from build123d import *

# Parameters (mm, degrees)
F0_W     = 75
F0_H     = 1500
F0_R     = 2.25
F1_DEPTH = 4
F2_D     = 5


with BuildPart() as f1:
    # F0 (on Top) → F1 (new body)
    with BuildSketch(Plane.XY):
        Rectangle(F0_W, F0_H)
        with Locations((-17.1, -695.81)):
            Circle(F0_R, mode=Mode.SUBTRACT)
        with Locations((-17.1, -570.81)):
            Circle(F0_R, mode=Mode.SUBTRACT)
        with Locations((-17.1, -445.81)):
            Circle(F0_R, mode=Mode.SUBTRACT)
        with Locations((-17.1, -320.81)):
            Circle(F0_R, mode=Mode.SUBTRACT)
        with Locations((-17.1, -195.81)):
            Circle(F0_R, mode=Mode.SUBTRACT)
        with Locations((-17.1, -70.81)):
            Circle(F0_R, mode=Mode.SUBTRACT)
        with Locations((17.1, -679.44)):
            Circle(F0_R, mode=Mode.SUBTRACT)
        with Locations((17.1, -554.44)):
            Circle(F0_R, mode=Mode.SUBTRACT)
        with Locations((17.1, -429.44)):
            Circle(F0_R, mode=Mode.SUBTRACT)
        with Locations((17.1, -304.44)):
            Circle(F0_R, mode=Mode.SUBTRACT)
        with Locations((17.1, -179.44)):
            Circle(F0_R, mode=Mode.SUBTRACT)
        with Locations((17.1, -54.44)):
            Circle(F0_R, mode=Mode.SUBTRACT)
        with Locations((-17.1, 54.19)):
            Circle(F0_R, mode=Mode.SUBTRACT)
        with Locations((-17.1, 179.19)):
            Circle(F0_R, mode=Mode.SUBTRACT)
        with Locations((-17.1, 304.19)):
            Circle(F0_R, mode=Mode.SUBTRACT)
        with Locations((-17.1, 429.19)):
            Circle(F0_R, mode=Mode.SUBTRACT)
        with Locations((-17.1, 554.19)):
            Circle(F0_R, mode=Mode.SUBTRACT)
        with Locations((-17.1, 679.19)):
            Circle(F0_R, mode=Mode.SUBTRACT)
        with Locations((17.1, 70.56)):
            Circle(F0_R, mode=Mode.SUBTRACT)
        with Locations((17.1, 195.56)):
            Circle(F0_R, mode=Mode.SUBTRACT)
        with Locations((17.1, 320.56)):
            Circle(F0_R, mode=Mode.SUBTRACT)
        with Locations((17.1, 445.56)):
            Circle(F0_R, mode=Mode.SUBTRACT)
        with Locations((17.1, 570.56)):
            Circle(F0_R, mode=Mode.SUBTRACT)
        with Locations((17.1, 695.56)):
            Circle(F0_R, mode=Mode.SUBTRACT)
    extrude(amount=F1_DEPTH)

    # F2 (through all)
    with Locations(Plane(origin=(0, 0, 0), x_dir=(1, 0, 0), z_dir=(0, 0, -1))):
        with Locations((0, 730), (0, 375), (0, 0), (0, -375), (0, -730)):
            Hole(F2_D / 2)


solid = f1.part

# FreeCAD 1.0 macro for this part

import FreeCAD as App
import Part
import Sketcher

V = App.Vector
Q = App.Units.Quantity

doc = App.newDocument("Part")
params = doc.addObject("Spreadsheet::Sheet", "Params")
for row, (alias, value) in enumerate([
    ("sketch1_diameter", "4.5 mm"),
    ("sketch1_width", "75 mm"),
    ("sketch1_height", "1500 mm"),
    ("pad1_length", "4 mm"),
    ("sketch2_diameter", "5 mm"),
    ("hole_diameter", "5 mm"),
], start=1):
    params.set(f"A{row}", alias)
    params.set(f"B{row}", "=" + value)
    params.setAlias(f"B{row}", alias)

body = doc.addObject("PartDesign::Body", "Body")

# Sketch on XY plane
sketch1 = doc.addObject("Sketcher::SketchObject", "Sketch")
body.addObject(sketch1)
sketch1.AttachmentSupport = (doc.XY_Plane, [""])
sketch1.MapMode = "FlatFace"
sketch1.addGeometry(Part.LineSegment(V(-37.5, 750, 0), V(-37.5, -750, 0)), False)
sketch1.addGeometry(Part.LineSegment(V(-37.5, -750, 0), V(37.5, -750, 0)), False)
sketch1.addGeometry(Part.LineSegment(V(37.5, -750, 0), V(37.5, 750, 0)), False)
sketch1.addGeometry(Part.LineSegment(V(37.5, 750, 0), V(-37.5, 750, 0)), False)
sketch1.addGeometry(Part.Circle(V(-17.1, -695.8, 0), V(0, 0, 1), 2.2), False)
sketch1.addGeometry(Part.Circle(V(-17.1, -570.8, 0), V(0, 0, 1), 2.2), False)
sketch1.addGeometry(Part.Circle(V(-17.1, -445.8, 0), V(0, 0, 1), 2.2), False)
sketch1.addGeometry(Part.Circle(V(-17.1, -320.8, 0), V(0, 0, 1), 2.2), False)
sketch1.addGeometry(Part.Circle(V(-17.1, -195.8, 0), V(0, 0, 1), 2.2), False)
sketch1.addGeometry(Part.Circle(V(-17.1, -70.8, 0), V(0, 0, 1), 2.2), False)
sketch1.addGeometry(Part.Circle(V(17.1, -679.4, 0), V(0, 0, 1), 2.2), False)
sketch1.addGeometry(Part.Circle(V(17.1, -554.4, 0), V(0, 0, 1), 2.2), False)
sketch1.addGeometry(Part.Circle(V(17.1, -429.4, 0), V(0, 0, 1), 2.2), False)
sketch1.addGeometry(Part.Circle(V(17.1, -304.4, 0), V(0, 0, 1), 2.2), False)
sketch1.addGeometry(Part.Circle(V(17.1, -179.4, 0), V(0, 0, 1), 2.2), False)
sketch1.addGeometry(Part.Circle(V(17.1, -54.4, 0), V(0, 0, 1), 2.2), False)
sketch1.addGeometry(Part.Circle(V(-17.1, 54.2, 0), V(0, 0, 1), 2.2), False)
sketch1.addGeometry(Part.Circle(V(-17.1, 179.2, 0), V(0, 0, 1), 2.2), False)
sketch1.addGeometry(Part.Circle(V(-17.1, 304.2, 0), V(0, 0, 1), 2.2), False)
sketch1.addGeometry(Part.Circle(V(-17.1, 429.2, 0), V(0, 0, 1), 2.2), False)
sketch1.addGeometry(Part.Circle(V(-17.1, 554.2, 0), V(0, 0, 1), 2.2), False)
sketch1.addGeometry(Part.Circle(V(-17.1, 679.2, 0), V(0, 0, 1), 2.2), False)
sketch1.addGeometry(Part.Circle(V(17.1, 70.6, 0), V(0, 0, 1), 2.2), False)
sketch1.addGeometry(Part.Circle(V(17.1, 195.6, 0), V(0, 0, 1), 2.2), False)
sketch1.addGeometry(Part.Circle(V(17.1, 320.6, 0), V(0, 0, 1), 2.2), False)
sketch1.addGeometry(Part.Circle(V(17.1, 445.6, 0), V(0, 0, 1), 2.2), False)
sketch1.addGeometry(Part.Circle(V(17.1, 570.6, 0), V(0, 0, 1), 2.2), False)
sketch1.addGeometry(Part.Circle(V(17.1, 695.6, 0), V(0, 0, 1), 2.2), False)
sketch1.addConstraint(Sketcher.Constraint("Coincident", 0, 2, 1, 1))
sketch1.addConstraint(Sketcher.Constraint("Coincident", 1, 2, 2, 1))
sketch1.addConstraint(Sketcher.Constraint("Coincident", 2, 2, 3, 1))
sketch1.addConstraint(Sketcher.Constraint("Coincident", 3, 2, 0, 1))
sketch1.addConstraint(Sketcher.Constraint("Vertical", 0))
sketch1.addConstraint(Sketcher.Constraint("Horizontal", 1))
sketch1.addConstraint(Sketcher.Constraint("Vertical", 2))
sketch1.addConstraint(Sketcher.Constraint("Horizontal", 3))
sketch1.addConstraint(Sketcher.Constraint("Equal", 4, 5))
sketch1.addConstraint(Sketcher.Constraint("Equal", 5, 6))
sketch1.addConstraint(Sketcher.Constraint("Equal", 6, 7))
sketch1.addConstraint(Sketcher.Constraint("Equal", 7, 8))
sketch1.addConstraint(Sketcher.Constraint("Equal", 8, 9))
sketch1.addConstraint(Sketcher.Constraint("Equal", 9, 10))
sketch1.addConstraint(Sketcher.Constraint("Equal", 10, 11))
sketch1.addConstraint(Sketcher.Constraint("Equal", 11, 12))
sketch1.addConstraint(Sketcher.Constraint("Equal", 12, 13))
sketch1.addConstraint(Sketcher.Constraint("Equal", 13, 14))
sketch1.addConstraint(Sketcher.Constraint("Equal", 14, 15))
sketch1.addConstraint(Sketcher.Constraint("Equal", 15, 16))
sketch1.addConstraint(Sketcher.Constraint("Equal", 16, 17))
sketch1.addConstraint(Sketcher.Constraint("Equal", 17, 18))
sketch1.addConstraint(Sketcher.Constraint("Equal", 18, 19))
sketch1.addConstraint(Sketcher.Constraint("Equal", 19, 20))
sketch1.addConstraint(Sketcher.Constraint("Equal", 20, 21))
sketch1.addConstraint(Sketcher.Constraint("Equal", 21, 22))
sketch1.addConstraint(Sketcher.Constraint("Equal", 22, 23))
sketch1.addConstraint(Sketcher.Constraint("Equal", 23, 24))
sketch1.addConstraint(Sketcher.Constraint("Equal", 24, 25))
sketch1.addConstraint(Sketcher.Constraint("Equal", 25, 26))
sketch1.addConstraint(Sketcher.Constraint("Equal", 26, 27))
sketch1.addConstraint(Sketcher.Constraint("Symmetric", 0, 2, 2, 2, -1, 1))
sketch1.addConstraint(Sketcher.Constraint("Vertical", 4, 3, 5, 3))
sketch1.addConstraint(Sketcher.Constraint("Vertical", 5, 3, 6, 3))
sketch1.addConstraint(Sketcher.Constraint("Vertical", 6, 3, 7, 3))
sketch1.addConstraint(Sketcher.Constraint("Vertical", 7, 3, 8, 3))
sketch1.addConstraint(Sketcher.Constraint("Vertical", 8, 3, 9, 3))
sketch1.addConstraint(Sketcher.Constraint("Vertical", 10, 3, 11, 3))
sketch1.addConstraint(Sketcher.Constraint("Vertical", 11, 3, 12, 3))
sketch1.addConstraint(Sketcher.Constraint("Vertical", 12, 3, 13, 3))
sketch1.addConstraint(Sketcher.Constraint("Vertical", 13, 3, 14, 3))
sketch1.addConstraint(Sketcher.Constraint("Vertical", 14, 3, 15, 3))
sketch1.addConstraint(Sketcher.Constraint("Vertical", 9, 3, 16, 3))
sketch1.addConstraint(Sketcher.Constraint("Vertical", 16, 3, 17, 3))
sketch1.addConstraint(Sketcher.Constraint("Vertical", 17, 3, 18, 3))
sketch1.addConstraint(Sketcher.Constraint("Vertical", 18, 3, 19, 3))
sketch1.addConstraint(Sketcher.Constraint("Vertical", 19, 3, 20, 3))
sketch1.addConstraint(Sketcher.Constraint("Vertical", 20, 3, 21, 3))
sketch1.addConstraint(Sketcher.Constraint("Vertical", 15, 3, 22, 3))
sketch1.addConstraint(Sketcher.Constraint("Vertical", 22, 3, 23, 3))
sketch1.addConstraint(Sketcher.Constraint("Vertical", 23, 3, 24, 3))
sketch1.addConstraint(Sketcher.Constraint("Vertical", 24, 3, 25, 3))
sketch1.addConstraint(Sketcher.Constraint("Vertical", 25, 3, 26, 3))
sketch1.addConstraint(Sketcher.Constraint("Vertical", 26, 3, 27, 3))
sketch1.addConstraint(Sketcher.Constraint("Diameter", 4, Q("4.5 mm")))
sketch1.addConstraint(Sketcher.Constraint("DistanceX", 1, 1, 1, 2, Q("75 mm")))
sketch1.addConstraint(Sketcher.Constraint("DistanceY", 0, 2, 0, 1, Q("1500 mm")))
sketch1.addConstraint(Sketcher.Constraint("DistanceY", 4, 3, 5, 3, Q("125 mm")))
sketch1.addConstraint(Sketcher.Constraint("DistanceY", 5, 3, 6, 3, Q("125 mm")))
sketch1.addConstraint(Sketcher.Constraint("DistanceY", 6, 3, 7, 3, Q("125 mm")))
sketch1.addConstraint(Sketcher.Constraint("DistanceY", 7, 3, 8, 3, Q("125 mm")))
sketch1.addConstraint(Sketcher.Constraint("DistanceY", 8, 3, 9, 3, Q("125 mm")))
sketch1.addConstraint(Sketcher.Constraint("DistanceY", 10, 3, 11, 3, Q("125 mm")))
sketch1.addConstraint(Sketcher.Constraint("DistanceY", 11, 3, 12, 3, Q("125 mm")))
sketch1.addConstraint(Sketcher.Constraint("DistanceY", 12, 3, 13, 3, Q("125 mm")))
sketch1.addConstraint(Sketcher.Constraint("DistanceY", 13, 3, 14, 3, Q("125 mm")))
sketch1.addConstraint(Sketcher.Constraint("DistanceY", 14, 3, 15, 3, Q("125 mm")))
sketch1.addConstraint(Sketcher.Constraint("DistanceY", 9, 3, 16, 3, Q("125 mm")))
sketch1.addConstraint(Sketcher.Constraint("DistanceY", 16, 3, 17, 3, Q("125 mm")))
sketch1.addConstraint(Sketcher.Constraint("DistanceY", 17, 3, 18, 3, Q("125 mm")))
sketch1.addConstraint(Sketcher.Constraint("DistanceY", 18, 3, 19, 3, Q("125 mm")))
sketch1.addConstraint(Sketcher.Constraint("DistanceY", 19, 3, 20, 3, Q("125 mm")))
sketch1.addConstraint(Sketcher.Constraint("DistanceY", 20, 3, 21, 3, Q("125 mm")))
sketch1.addConstraint(Sketcher.Constraint("DistanceY", 15, 3, 22, 3, Q("125 mm")))
sketch1.addConstraint(Sketcher.Constraint("DistanceY", 22, 3, 23, 3, Q("125 mm")))
sketch1.addConstraint(Sketcher.Constraint("DistanceY", 23, 3, 24, 3, Q("125 mm")))
sketch1.addConstraint(Sketcher.Constraint("DistanceY", 24, 3, 25, 3, Q("125 mm")))
sketch1.addConstraint(Sketcher.Constraint("DistanceY", 25, 3, 26, 3, Q("125 mm")))
sketch1.addConstraint(Sketcher.Constraint("DistanceY", 26, 3, 27, 3, Q("125 mm")))
sketch1.addConstraint(Sketcher.Constraint("DistanceX", 4, 3, -1, 1, Q("17.1 mm")))
sketch1.addConstraint(Sketcher.Constraint("DistanceX", -1, 1, 10, 3, Q("17.1 mm")))
sketch1.addConstraint(Sketcher.Constraint("DistanceY", 4, 3, -1, 1, Q("695.81 mm")))
sketch1.addConstraint(Sketcher.Constraint("DistanceY", 10, 3, -1, 1, Q("679.44 mm")))
sketch1.setExpression("Constraints[54]", "Params.sketch1_diameter")
sketch1.setExpression("Constraints[55]", "Params.sketch1_width")
sketch1.setExpression("Constraints[56]", "Params.sketch1_height")
pad1 = doc.addObject("PartDesign::Pad", "Pad")
body.addObject(pad1)
pad1.Profile = sketch1
pad1.setExpression("Length", "Params.pad1_length")

# Sketch on XY plane
sketch2 = doc.addObject("Sketcher::SketchObject", "Sketch001")
body.addObject(sketch2)
sketch2.AttachmentSupport = (doc.XY_Plane, [""])
sketch2.MapMode = "FlatFace"
sketch2.addGeometry(Part.Circle(V(0, -730, 0), V(0, 0, 1), 2.5), False)
sketch2.addGeometry(Part.Circle(V(0, -375, 0), V(0, 0, 1), 2.5), False)
sketch2.addGeometry(Part.Circle(V(0, 0, 0), V(0, 0, 1), 2.5), False)
sketch2.addGeometry(Part.Circle(V(0, 375, 0), V(0, 0, 1), 2.5), False)
sketch2.addGeometry(Part.Circle(V(0, 730, 0), V(0, 0, 1), 2.5), False)
sketch2.addConstraint(Sketcher.Constraint("Coincident", 2, 3, -1, 1))
sketch2.addConstraint(Sketcher.Constraint("Equal", 0, 1))
sketch2.addConstraint(Sketcher.Constraint("Equal", 1, 2))
sketch2.addConstraint(Sketcher.Constraint("Equal", 2, 3))
sketch2.addConstraint(Sketcher.Constraint("Equal", 3, 4))
sketch2.addConstraint(Sketcher.Constraint("Symmetric", 1, 3, 3, 3, -1, 1))
sketch2.addConstraint(Sketcher.Constraint("Symmetric", 0, 3, 4, 3, -1, 1))
sketch2.addConstraint(Sketcher.Constraint("PointOnObject", 0, 3, -2))
sketch2.addConstraint(Sketcher.Constraint("PointOnObject", 1, 3, -2))
sketch2.addConstraint(Sketcher.Constraint("Diameter", 0, Q("5 mm")))
sketch2.addConstraint(Sketcher.Constraint("DistanceY", 0, 3, -1, 1, Q("730 mm")))
sketch2.addConstraint(Sketcher.Constraint("DistanceY", 1, 3, -1, 1, Q("375 mm")))
sketch2.setExpression("Constraints[9]", "Params.sketch2_diameter")
doc.recompute()
hole = doc.addObject("PartDesign::Hole", "Hole")
body.addObject(hole)
hole.Profile = sketch2
hole.ThreadType = "None"
hole.setExpression("Diameter", "Params.hole_diameter")
hole.DepthType = "ThroughAll"
hole.Reversed = True

doc.recompute()
